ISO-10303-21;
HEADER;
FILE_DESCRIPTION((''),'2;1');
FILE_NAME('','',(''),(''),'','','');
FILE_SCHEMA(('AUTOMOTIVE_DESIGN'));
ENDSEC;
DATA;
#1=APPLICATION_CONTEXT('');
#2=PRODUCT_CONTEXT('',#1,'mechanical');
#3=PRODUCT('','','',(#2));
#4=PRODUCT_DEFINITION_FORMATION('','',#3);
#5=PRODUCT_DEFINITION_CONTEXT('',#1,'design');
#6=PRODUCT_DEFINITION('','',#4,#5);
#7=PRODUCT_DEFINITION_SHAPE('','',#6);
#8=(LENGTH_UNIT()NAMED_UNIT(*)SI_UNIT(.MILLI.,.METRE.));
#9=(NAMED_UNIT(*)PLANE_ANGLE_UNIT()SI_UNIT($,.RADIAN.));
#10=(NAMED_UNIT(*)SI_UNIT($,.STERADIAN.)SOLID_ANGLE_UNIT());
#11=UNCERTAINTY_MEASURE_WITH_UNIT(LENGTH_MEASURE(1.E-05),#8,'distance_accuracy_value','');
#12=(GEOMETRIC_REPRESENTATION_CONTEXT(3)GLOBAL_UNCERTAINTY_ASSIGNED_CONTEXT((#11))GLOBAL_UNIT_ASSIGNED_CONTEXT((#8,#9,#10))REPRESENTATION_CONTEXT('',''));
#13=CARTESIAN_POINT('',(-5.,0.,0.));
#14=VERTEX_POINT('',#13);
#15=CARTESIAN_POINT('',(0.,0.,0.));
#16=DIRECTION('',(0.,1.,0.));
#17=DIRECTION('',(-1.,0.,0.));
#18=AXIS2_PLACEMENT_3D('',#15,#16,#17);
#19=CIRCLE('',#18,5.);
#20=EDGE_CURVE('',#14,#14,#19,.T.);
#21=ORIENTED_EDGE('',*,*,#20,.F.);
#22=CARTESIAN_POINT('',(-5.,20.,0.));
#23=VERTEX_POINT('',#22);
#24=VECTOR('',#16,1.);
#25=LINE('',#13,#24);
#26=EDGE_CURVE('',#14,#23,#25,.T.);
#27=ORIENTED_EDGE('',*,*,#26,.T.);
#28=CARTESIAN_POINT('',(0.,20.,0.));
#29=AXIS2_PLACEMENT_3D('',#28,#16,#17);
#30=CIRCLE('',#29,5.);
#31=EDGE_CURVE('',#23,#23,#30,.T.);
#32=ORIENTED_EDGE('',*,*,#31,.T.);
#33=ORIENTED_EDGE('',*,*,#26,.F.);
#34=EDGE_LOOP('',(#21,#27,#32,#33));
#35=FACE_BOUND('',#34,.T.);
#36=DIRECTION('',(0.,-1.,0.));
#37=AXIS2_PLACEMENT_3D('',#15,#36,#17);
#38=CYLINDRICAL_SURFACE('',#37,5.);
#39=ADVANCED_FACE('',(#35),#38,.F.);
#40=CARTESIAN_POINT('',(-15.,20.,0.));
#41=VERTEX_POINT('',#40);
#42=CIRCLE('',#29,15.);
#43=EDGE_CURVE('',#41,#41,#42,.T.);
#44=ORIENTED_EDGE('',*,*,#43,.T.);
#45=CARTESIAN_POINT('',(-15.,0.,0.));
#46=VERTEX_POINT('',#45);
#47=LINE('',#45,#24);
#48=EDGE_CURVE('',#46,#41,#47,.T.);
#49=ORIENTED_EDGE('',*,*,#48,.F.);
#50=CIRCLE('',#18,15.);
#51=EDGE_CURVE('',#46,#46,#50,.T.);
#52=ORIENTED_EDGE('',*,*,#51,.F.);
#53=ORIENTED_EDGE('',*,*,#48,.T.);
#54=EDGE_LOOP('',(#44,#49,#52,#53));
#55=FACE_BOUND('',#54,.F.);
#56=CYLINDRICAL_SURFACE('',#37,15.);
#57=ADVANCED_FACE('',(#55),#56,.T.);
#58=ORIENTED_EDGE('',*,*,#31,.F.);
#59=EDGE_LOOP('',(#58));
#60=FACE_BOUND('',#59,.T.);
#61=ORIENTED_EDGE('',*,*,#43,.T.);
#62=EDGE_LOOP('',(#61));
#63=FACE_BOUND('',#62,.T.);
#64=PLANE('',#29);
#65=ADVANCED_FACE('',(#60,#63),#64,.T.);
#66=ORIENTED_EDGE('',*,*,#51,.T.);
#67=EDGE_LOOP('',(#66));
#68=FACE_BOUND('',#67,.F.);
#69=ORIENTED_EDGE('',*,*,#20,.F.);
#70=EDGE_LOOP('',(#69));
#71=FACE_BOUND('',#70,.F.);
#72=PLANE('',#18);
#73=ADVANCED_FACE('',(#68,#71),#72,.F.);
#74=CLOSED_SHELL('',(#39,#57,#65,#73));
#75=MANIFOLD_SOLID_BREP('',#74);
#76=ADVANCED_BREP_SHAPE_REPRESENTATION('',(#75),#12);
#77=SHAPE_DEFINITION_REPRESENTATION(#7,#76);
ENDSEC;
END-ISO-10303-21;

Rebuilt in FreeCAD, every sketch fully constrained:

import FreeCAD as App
import Part
import Sketcher
from FreeCAD import Vector
Q = App.Units.Quantity

doc = App.newDocument("Part")
body = doc.addObject("PartDesign::Body", "Body")

sketch1 = body.newObject("Sketcher::SketchObject", "Sketch")
sketch1.AttachmentSupport = (doc.getObject("XZ_Plane"), [""])
sketch1.MapMode = "FlatFace"
sketch1.addGeometry(Part.Circle(Vector(0, 0, 0), Vector(0, 0, 1), 15), False)
sketch1.addGeometry(Part.Circle(Vector(0, 0, 0), Vector(0, 0, 1), 5), False)
sketch1.addConstraint(Sketcher.Constraint("Coincident", 0, 3, -1, 1))
sketch1.addConstraint(Sketcher.Constraint("Coincident", 1, 3, -1, 1))
sketch1.addConstraint(Sketcher.Constraint("Diameter", 0, Q("30 mm")))
sketch1.addConstraint(Sketcher.Constraint("Diameter", 1, Q("10 mm")))
pad1 = body.newObject("PartDesign::Pad", "Pad")
pad1.Profile = sketch1
pad1.Length = 20
pad1.Reversed = True

doc.recompute()
